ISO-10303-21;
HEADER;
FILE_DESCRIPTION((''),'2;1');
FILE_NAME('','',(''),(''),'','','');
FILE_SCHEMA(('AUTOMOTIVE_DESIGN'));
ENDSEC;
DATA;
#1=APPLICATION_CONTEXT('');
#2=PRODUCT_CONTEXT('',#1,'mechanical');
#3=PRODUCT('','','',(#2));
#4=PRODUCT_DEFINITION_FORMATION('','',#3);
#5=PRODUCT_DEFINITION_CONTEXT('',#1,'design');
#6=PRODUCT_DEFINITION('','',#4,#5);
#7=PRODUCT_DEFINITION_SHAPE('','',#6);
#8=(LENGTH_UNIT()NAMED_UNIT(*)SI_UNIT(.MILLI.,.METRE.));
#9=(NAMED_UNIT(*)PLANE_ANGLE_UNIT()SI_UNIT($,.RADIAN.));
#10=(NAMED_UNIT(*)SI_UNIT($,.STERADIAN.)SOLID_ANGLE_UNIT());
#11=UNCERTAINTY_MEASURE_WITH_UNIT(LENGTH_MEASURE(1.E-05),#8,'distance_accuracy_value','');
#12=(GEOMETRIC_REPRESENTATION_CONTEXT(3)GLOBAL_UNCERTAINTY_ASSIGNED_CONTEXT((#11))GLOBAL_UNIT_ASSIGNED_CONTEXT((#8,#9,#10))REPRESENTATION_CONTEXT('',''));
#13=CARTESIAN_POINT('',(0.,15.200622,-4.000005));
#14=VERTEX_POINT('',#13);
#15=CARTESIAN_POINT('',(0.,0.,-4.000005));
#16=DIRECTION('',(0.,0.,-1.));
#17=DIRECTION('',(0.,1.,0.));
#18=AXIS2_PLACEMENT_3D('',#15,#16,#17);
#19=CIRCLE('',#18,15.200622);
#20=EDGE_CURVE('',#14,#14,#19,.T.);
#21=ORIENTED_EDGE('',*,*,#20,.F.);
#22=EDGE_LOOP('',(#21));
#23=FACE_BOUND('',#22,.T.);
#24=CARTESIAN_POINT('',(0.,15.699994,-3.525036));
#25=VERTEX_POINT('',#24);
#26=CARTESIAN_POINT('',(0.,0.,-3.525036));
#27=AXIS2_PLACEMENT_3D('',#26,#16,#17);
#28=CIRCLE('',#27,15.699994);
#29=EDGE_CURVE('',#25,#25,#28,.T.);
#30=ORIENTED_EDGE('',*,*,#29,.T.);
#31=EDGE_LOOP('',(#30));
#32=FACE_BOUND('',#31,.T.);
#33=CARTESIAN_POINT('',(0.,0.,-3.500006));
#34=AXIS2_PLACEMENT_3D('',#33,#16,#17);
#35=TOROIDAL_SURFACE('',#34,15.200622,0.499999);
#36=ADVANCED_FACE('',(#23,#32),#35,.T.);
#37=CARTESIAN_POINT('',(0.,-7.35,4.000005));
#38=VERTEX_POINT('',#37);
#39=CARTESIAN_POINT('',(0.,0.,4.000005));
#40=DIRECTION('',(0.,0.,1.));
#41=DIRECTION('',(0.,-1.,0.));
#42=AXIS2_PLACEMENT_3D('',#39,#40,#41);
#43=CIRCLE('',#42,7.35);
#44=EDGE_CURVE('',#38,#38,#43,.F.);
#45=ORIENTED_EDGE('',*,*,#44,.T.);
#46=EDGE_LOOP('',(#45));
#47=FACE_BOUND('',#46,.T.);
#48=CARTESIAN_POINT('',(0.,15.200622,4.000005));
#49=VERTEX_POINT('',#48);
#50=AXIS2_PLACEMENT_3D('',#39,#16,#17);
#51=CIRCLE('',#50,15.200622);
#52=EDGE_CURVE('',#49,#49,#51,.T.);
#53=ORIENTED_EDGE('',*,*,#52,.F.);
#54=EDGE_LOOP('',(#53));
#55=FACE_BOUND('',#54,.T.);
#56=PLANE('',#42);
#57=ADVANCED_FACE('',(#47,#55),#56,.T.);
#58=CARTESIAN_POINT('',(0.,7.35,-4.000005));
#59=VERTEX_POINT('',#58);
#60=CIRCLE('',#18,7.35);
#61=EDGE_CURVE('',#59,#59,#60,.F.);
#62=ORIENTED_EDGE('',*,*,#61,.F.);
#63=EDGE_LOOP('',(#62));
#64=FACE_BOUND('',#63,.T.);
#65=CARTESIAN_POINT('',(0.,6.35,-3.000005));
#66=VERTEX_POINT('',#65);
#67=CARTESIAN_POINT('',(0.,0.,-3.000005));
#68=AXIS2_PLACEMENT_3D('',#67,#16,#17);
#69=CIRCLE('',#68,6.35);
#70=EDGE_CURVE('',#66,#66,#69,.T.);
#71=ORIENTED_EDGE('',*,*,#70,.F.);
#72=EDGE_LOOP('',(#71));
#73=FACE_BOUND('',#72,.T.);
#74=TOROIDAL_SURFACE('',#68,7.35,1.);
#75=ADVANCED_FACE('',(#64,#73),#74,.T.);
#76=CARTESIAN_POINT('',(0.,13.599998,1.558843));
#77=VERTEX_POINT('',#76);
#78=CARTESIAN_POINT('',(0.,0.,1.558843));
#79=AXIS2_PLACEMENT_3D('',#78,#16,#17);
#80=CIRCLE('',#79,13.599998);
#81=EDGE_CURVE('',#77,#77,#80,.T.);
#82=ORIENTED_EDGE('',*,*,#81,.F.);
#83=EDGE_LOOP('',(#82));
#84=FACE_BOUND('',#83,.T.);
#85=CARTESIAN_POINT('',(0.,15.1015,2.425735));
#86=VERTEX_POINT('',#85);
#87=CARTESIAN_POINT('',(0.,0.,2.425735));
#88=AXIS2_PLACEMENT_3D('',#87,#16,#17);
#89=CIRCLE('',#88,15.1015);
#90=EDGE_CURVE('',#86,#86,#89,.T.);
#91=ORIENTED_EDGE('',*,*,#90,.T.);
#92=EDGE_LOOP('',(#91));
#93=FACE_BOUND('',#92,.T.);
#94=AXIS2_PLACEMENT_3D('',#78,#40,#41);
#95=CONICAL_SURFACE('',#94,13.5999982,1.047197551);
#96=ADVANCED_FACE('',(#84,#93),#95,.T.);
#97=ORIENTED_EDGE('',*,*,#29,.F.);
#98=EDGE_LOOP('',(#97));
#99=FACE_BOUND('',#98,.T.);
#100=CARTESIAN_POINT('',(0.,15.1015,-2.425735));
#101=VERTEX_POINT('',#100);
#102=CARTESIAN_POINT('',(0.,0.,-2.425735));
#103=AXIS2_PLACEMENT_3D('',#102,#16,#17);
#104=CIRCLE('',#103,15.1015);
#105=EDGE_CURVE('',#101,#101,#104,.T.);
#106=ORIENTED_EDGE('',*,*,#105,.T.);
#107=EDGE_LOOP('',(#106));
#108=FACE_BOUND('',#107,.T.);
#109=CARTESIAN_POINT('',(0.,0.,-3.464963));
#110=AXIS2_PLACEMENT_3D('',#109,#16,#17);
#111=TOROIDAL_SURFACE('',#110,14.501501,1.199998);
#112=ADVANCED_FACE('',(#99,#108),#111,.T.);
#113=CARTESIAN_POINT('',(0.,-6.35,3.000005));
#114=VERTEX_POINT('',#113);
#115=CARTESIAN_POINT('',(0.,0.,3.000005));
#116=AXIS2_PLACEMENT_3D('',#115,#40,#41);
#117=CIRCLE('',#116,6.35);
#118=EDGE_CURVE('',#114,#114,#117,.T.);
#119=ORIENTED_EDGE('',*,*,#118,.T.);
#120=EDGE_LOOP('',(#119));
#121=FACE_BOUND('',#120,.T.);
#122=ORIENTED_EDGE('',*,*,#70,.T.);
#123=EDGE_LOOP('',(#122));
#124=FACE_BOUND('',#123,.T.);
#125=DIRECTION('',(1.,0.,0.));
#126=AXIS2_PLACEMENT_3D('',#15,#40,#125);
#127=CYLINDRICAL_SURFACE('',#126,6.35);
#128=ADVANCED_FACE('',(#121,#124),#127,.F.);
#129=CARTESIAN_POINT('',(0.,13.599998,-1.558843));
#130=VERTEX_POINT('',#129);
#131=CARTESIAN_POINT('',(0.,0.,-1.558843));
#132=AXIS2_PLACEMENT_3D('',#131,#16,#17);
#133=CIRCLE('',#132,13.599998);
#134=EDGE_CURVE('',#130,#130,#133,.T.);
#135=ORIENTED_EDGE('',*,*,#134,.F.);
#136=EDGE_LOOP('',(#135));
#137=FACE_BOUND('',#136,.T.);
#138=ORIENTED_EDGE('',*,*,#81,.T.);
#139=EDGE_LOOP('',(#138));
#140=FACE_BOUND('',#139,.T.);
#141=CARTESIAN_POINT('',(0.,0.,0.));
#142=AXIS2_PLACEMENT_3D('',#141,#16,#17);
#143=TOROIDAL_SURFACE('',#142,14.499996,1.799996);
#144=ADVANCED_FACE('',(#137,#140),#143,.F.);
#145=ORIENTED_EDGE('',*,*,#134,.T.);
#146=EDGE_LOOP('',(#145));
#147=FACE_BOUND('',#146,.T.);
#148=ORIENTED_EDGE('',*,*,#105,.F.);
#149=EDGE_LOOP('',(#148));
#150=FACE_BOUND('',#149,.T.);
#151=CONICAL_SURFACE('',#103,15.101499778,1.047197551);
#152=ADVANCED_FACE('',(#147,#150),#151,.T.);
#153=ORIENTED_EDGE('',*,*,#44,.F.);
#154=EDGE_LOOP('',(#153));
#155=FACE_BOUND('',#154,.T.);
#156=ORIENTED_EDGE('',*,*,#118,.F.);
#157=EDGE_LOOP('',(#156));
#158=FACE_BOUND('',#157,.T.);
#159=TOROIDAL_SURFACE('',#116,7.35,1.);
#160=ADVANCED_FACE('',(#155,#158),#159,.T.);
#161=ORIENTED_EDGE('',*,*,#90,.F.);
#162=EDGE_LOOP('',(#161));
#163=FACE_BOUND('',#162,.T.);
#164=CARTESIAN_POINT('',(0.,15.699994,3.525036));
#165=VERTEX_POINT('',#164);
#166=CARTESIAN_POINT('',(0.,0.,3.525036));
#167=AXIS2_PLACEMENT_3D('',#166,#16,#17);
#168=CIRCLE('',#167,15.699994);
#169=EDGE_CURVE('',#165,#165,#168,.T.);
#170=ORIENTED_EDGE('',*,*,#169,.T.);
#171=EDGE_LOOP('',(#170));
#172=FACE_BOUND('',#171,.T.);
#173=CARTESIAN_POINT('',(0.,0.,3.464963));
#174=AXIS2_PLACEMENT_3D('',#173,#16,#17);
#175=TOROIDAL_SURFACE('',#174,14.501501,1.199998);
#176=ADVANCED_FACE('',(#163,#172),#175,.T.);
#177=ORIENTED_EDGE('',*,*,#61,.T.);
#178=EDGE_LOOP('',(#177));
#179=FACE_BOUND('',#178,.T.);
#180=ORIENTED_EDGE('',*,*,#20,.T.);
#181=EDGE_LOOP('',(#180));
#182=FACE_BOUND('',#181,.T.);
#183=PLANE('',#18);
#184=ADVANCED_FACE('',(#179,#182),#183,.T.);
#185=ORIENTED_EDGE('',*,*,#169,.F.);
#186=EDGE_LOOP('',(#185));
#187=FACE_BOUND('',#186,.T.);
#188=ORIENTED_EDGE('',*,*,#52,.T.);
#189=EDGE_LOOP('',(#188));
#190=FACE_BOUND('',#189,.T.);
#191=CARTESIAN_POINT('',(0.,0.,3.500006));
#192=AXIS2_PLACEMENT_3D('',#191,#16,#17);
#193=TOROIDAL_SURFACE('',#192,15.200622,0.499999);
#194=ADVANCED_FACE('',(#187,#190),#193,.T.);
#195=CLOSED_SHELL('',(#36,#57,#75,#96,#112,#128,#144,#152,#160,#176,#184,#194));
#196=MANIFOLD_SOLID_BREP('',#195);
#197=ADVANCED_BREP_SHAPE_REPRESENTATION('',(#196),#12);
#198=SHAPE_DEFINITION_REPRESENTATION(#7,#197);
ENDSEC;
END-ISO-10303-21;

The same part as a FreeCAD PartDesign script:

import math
import FreeCAD as App
import Part
import Sketcher

V = App.Vector
Q = App.Units.Quantity


def edges_at(feature, points):
    """Names of the edges that pass closest to the given points."""
    edges = feature.Shape.Edges
    near = lambda p: min(range(len(edges)), key=lambda i: edges[i].distToShape(Part.Vertex(*p))[0])
    return sorted({f"Edge{near(p) + 1}" for p in points})

doc = App.newDocument("Part")
body = doc.addObject("PartDesign::Body", "Body")

sketch1 = body.newObject("Sketcher::SketchObject", "Sketch")
sketch1.AttachmentSupport = (doc.getObject("YZ_Plane"), [""])
sketch1.MapMode = "FlatFace"
sketch1.addGeometry(Part.LineSegment(V(0, 4, 0), V(0, -4, 0)), False)
sketch1.addGeometry(Part.LineSegment(V(0, -4, 0), V(15.2, -4, 0)), False)
sketch1.addGeometry(Part.ArcOfCircle(Part.Circle(V(15.2, -3.5, 0), V(0, 0, 1), 0.5), math.radians(-90), math.radians(-3)), False)
sketch1.addGeometry(Part.ArcOfCircle(Part.Circle(V(14.5, -3.46, 0), V(0, 0, 1), 1.2), math.radians(-3), math.radians(60)), False)
sketch1.addGeometry(Part.LineSegment(V(15.1, -2.43, 0), V(13.6, -1.56, 0)), False)
sketch1.addGeometry(Part.ArcOfCircle(Part.Circle(V(14.5, 0, 0), V(0, 0, 1), 1.8), math.radians(120), math.radians(240)), False)
sketch1.addGeometry(Part.LineSegment(V(13.6, 1.56, 0), V(15.1, 2.43, 0)), False)
sketch1.addGeometry(Part.ArcOfCircle(Part.Circle(V(14.5, 3.46, 0), V(0, 0, 1), 1.2), math.radians(-60), math.radians(3)), False)
sketch1.addGeometry(Part.ArcOfCircle(Part.Circle(V(15.2, 3.5, 0), V(0, 0, 1), 0.5), math.radians(3), math.radians(90)), False)
sketch1.addGeometry(Part.LineSegment(V(15.2, 4, 0), V(0, 4, 0)), False)
sketch1.addConstraint(Sketcher.Constraint("Coincident", 0, 2, 1, 1))
sketch1.addConstraint(Sketcher.Constraint("Tangent", 1, 2, 2, 1))
sketch1.addConstraint(Sketcher.Constraint("Tangent", 2, 2, 3, 1))
sketch1.addConstraint(Sketcher.Constraint("Tangent", 3, 2, 4, 1))
sketch1.addConstraint(Sketcher.Constraint("Tangent", 4, 2, 5, 2))
sketch1.addConstraint(Sketcher.Constraint("Tangent", 5, 1, 6, 1))
sketch1.addConstraint(Sketcher.Constraint("Tangent", 6, 2, 7, 1))
sketch1.addConstraint(Sketcher.Constraint("Tangent", 7, 2, 8, 1))
sketch1.addConstraint(Sketcher.Constraint("Tangent", 8, 2, 9, 1))
sketch1.addConstraint(Sketcher.Constraint("Coincident", 9, 2, 0, 1))
sketch1.addConstraint(Sketcher.Constraint("Vertical", 0))
sketch1.addConstraint(Sketcher.Constraint("Horizontal", 1))
sketch1.addConstraint(Sketcher.Constraint("Horizontal", 9))
sketch1.addConstraint(Sketcher.Constraint("Equal", 3, 7))
sketch1.addConstraint(Sketcher.Constraint("Equal", 2, 8))
sketch1.addConstraint(Sketcher.Constraint("Symmetric", 0, 2, 9, 2, -1, 1))
sketch1.addConstraint(Sketcher.Constraint("Symmetric", 3, 3, 7, 3, -1))
sketch1.addConstraint(Sketcher.Constraint("PointOnObject", 5, 3, -1))
sketch1.addConstraint(Sketcher.Constraint("Radius", 2, 0.499999))
sketch1.addConstraint(Sketcher.Constraint("Angle", 4, Q("150 deg")))
sketch1.addConstraint(Sketcher.Constraint("DistanceX", -1, 1, 4, 2, 13.599998))
sketch1.addConstraint(Sketcher.Constraint("DistanceX", 3, 3, 3, 2, 0.599999))
sketch1.addConstraint(Sketcher.Constraint("DistanceX", 4, 2, 5, 3, 0.899998))
sketch1.addConstraint(Sketcher.Constraint("DistanceX", 1, 1, 1, 2, 15.200622))
sketch1.addConstraint(Sketcher.Constraint("DistanceY", 0, 2, 0, 1, 8.000009))
revolution = body.newObject("PartDesign::Revolution", "Revolution")
revolution.Profile = sketch1
revolution.ReferenceAxis = (sketch1, ["V_Axis"])
revolution.Angle = 360

sketch2 = body.newObject("Sketcher::SketchObject", "Sketch001")
sketch2.AttachmentSupport = (doc.getObject("XY_Plane"), [""])
sketch2.MapMode = "FlatFace"
sketch2.AttachmentOffset = App.Placement(V(0, 0, 4.000005), App.Rotation())
sketch2.addGeometry(Part.Circle(V(0, 0, 0), V(0, 0, 1), 6), False)
sketch2.addConstraint(Sketcher.Constraint("Coincident", 0, 3, -1, 1))
sketch2.addConstraint(Sketcher.Constraint("Diameter", 0, 12.7))
pocket1 = body.newObject("PartDesign::Pocket", "Pocket")
pocket1.Profile = sketch2
pocket1.Type = "ThroughAll"
doc.recompute()

fillet = body.newObject("PartDesign::Fillet", "Fillet")
fillet.Base = (pocket1, edges_at(pocket1, [(-6.35, 0, -4), (-6.35, 0, 4)]))
fillet.Radius = 1

doc.recompute()
